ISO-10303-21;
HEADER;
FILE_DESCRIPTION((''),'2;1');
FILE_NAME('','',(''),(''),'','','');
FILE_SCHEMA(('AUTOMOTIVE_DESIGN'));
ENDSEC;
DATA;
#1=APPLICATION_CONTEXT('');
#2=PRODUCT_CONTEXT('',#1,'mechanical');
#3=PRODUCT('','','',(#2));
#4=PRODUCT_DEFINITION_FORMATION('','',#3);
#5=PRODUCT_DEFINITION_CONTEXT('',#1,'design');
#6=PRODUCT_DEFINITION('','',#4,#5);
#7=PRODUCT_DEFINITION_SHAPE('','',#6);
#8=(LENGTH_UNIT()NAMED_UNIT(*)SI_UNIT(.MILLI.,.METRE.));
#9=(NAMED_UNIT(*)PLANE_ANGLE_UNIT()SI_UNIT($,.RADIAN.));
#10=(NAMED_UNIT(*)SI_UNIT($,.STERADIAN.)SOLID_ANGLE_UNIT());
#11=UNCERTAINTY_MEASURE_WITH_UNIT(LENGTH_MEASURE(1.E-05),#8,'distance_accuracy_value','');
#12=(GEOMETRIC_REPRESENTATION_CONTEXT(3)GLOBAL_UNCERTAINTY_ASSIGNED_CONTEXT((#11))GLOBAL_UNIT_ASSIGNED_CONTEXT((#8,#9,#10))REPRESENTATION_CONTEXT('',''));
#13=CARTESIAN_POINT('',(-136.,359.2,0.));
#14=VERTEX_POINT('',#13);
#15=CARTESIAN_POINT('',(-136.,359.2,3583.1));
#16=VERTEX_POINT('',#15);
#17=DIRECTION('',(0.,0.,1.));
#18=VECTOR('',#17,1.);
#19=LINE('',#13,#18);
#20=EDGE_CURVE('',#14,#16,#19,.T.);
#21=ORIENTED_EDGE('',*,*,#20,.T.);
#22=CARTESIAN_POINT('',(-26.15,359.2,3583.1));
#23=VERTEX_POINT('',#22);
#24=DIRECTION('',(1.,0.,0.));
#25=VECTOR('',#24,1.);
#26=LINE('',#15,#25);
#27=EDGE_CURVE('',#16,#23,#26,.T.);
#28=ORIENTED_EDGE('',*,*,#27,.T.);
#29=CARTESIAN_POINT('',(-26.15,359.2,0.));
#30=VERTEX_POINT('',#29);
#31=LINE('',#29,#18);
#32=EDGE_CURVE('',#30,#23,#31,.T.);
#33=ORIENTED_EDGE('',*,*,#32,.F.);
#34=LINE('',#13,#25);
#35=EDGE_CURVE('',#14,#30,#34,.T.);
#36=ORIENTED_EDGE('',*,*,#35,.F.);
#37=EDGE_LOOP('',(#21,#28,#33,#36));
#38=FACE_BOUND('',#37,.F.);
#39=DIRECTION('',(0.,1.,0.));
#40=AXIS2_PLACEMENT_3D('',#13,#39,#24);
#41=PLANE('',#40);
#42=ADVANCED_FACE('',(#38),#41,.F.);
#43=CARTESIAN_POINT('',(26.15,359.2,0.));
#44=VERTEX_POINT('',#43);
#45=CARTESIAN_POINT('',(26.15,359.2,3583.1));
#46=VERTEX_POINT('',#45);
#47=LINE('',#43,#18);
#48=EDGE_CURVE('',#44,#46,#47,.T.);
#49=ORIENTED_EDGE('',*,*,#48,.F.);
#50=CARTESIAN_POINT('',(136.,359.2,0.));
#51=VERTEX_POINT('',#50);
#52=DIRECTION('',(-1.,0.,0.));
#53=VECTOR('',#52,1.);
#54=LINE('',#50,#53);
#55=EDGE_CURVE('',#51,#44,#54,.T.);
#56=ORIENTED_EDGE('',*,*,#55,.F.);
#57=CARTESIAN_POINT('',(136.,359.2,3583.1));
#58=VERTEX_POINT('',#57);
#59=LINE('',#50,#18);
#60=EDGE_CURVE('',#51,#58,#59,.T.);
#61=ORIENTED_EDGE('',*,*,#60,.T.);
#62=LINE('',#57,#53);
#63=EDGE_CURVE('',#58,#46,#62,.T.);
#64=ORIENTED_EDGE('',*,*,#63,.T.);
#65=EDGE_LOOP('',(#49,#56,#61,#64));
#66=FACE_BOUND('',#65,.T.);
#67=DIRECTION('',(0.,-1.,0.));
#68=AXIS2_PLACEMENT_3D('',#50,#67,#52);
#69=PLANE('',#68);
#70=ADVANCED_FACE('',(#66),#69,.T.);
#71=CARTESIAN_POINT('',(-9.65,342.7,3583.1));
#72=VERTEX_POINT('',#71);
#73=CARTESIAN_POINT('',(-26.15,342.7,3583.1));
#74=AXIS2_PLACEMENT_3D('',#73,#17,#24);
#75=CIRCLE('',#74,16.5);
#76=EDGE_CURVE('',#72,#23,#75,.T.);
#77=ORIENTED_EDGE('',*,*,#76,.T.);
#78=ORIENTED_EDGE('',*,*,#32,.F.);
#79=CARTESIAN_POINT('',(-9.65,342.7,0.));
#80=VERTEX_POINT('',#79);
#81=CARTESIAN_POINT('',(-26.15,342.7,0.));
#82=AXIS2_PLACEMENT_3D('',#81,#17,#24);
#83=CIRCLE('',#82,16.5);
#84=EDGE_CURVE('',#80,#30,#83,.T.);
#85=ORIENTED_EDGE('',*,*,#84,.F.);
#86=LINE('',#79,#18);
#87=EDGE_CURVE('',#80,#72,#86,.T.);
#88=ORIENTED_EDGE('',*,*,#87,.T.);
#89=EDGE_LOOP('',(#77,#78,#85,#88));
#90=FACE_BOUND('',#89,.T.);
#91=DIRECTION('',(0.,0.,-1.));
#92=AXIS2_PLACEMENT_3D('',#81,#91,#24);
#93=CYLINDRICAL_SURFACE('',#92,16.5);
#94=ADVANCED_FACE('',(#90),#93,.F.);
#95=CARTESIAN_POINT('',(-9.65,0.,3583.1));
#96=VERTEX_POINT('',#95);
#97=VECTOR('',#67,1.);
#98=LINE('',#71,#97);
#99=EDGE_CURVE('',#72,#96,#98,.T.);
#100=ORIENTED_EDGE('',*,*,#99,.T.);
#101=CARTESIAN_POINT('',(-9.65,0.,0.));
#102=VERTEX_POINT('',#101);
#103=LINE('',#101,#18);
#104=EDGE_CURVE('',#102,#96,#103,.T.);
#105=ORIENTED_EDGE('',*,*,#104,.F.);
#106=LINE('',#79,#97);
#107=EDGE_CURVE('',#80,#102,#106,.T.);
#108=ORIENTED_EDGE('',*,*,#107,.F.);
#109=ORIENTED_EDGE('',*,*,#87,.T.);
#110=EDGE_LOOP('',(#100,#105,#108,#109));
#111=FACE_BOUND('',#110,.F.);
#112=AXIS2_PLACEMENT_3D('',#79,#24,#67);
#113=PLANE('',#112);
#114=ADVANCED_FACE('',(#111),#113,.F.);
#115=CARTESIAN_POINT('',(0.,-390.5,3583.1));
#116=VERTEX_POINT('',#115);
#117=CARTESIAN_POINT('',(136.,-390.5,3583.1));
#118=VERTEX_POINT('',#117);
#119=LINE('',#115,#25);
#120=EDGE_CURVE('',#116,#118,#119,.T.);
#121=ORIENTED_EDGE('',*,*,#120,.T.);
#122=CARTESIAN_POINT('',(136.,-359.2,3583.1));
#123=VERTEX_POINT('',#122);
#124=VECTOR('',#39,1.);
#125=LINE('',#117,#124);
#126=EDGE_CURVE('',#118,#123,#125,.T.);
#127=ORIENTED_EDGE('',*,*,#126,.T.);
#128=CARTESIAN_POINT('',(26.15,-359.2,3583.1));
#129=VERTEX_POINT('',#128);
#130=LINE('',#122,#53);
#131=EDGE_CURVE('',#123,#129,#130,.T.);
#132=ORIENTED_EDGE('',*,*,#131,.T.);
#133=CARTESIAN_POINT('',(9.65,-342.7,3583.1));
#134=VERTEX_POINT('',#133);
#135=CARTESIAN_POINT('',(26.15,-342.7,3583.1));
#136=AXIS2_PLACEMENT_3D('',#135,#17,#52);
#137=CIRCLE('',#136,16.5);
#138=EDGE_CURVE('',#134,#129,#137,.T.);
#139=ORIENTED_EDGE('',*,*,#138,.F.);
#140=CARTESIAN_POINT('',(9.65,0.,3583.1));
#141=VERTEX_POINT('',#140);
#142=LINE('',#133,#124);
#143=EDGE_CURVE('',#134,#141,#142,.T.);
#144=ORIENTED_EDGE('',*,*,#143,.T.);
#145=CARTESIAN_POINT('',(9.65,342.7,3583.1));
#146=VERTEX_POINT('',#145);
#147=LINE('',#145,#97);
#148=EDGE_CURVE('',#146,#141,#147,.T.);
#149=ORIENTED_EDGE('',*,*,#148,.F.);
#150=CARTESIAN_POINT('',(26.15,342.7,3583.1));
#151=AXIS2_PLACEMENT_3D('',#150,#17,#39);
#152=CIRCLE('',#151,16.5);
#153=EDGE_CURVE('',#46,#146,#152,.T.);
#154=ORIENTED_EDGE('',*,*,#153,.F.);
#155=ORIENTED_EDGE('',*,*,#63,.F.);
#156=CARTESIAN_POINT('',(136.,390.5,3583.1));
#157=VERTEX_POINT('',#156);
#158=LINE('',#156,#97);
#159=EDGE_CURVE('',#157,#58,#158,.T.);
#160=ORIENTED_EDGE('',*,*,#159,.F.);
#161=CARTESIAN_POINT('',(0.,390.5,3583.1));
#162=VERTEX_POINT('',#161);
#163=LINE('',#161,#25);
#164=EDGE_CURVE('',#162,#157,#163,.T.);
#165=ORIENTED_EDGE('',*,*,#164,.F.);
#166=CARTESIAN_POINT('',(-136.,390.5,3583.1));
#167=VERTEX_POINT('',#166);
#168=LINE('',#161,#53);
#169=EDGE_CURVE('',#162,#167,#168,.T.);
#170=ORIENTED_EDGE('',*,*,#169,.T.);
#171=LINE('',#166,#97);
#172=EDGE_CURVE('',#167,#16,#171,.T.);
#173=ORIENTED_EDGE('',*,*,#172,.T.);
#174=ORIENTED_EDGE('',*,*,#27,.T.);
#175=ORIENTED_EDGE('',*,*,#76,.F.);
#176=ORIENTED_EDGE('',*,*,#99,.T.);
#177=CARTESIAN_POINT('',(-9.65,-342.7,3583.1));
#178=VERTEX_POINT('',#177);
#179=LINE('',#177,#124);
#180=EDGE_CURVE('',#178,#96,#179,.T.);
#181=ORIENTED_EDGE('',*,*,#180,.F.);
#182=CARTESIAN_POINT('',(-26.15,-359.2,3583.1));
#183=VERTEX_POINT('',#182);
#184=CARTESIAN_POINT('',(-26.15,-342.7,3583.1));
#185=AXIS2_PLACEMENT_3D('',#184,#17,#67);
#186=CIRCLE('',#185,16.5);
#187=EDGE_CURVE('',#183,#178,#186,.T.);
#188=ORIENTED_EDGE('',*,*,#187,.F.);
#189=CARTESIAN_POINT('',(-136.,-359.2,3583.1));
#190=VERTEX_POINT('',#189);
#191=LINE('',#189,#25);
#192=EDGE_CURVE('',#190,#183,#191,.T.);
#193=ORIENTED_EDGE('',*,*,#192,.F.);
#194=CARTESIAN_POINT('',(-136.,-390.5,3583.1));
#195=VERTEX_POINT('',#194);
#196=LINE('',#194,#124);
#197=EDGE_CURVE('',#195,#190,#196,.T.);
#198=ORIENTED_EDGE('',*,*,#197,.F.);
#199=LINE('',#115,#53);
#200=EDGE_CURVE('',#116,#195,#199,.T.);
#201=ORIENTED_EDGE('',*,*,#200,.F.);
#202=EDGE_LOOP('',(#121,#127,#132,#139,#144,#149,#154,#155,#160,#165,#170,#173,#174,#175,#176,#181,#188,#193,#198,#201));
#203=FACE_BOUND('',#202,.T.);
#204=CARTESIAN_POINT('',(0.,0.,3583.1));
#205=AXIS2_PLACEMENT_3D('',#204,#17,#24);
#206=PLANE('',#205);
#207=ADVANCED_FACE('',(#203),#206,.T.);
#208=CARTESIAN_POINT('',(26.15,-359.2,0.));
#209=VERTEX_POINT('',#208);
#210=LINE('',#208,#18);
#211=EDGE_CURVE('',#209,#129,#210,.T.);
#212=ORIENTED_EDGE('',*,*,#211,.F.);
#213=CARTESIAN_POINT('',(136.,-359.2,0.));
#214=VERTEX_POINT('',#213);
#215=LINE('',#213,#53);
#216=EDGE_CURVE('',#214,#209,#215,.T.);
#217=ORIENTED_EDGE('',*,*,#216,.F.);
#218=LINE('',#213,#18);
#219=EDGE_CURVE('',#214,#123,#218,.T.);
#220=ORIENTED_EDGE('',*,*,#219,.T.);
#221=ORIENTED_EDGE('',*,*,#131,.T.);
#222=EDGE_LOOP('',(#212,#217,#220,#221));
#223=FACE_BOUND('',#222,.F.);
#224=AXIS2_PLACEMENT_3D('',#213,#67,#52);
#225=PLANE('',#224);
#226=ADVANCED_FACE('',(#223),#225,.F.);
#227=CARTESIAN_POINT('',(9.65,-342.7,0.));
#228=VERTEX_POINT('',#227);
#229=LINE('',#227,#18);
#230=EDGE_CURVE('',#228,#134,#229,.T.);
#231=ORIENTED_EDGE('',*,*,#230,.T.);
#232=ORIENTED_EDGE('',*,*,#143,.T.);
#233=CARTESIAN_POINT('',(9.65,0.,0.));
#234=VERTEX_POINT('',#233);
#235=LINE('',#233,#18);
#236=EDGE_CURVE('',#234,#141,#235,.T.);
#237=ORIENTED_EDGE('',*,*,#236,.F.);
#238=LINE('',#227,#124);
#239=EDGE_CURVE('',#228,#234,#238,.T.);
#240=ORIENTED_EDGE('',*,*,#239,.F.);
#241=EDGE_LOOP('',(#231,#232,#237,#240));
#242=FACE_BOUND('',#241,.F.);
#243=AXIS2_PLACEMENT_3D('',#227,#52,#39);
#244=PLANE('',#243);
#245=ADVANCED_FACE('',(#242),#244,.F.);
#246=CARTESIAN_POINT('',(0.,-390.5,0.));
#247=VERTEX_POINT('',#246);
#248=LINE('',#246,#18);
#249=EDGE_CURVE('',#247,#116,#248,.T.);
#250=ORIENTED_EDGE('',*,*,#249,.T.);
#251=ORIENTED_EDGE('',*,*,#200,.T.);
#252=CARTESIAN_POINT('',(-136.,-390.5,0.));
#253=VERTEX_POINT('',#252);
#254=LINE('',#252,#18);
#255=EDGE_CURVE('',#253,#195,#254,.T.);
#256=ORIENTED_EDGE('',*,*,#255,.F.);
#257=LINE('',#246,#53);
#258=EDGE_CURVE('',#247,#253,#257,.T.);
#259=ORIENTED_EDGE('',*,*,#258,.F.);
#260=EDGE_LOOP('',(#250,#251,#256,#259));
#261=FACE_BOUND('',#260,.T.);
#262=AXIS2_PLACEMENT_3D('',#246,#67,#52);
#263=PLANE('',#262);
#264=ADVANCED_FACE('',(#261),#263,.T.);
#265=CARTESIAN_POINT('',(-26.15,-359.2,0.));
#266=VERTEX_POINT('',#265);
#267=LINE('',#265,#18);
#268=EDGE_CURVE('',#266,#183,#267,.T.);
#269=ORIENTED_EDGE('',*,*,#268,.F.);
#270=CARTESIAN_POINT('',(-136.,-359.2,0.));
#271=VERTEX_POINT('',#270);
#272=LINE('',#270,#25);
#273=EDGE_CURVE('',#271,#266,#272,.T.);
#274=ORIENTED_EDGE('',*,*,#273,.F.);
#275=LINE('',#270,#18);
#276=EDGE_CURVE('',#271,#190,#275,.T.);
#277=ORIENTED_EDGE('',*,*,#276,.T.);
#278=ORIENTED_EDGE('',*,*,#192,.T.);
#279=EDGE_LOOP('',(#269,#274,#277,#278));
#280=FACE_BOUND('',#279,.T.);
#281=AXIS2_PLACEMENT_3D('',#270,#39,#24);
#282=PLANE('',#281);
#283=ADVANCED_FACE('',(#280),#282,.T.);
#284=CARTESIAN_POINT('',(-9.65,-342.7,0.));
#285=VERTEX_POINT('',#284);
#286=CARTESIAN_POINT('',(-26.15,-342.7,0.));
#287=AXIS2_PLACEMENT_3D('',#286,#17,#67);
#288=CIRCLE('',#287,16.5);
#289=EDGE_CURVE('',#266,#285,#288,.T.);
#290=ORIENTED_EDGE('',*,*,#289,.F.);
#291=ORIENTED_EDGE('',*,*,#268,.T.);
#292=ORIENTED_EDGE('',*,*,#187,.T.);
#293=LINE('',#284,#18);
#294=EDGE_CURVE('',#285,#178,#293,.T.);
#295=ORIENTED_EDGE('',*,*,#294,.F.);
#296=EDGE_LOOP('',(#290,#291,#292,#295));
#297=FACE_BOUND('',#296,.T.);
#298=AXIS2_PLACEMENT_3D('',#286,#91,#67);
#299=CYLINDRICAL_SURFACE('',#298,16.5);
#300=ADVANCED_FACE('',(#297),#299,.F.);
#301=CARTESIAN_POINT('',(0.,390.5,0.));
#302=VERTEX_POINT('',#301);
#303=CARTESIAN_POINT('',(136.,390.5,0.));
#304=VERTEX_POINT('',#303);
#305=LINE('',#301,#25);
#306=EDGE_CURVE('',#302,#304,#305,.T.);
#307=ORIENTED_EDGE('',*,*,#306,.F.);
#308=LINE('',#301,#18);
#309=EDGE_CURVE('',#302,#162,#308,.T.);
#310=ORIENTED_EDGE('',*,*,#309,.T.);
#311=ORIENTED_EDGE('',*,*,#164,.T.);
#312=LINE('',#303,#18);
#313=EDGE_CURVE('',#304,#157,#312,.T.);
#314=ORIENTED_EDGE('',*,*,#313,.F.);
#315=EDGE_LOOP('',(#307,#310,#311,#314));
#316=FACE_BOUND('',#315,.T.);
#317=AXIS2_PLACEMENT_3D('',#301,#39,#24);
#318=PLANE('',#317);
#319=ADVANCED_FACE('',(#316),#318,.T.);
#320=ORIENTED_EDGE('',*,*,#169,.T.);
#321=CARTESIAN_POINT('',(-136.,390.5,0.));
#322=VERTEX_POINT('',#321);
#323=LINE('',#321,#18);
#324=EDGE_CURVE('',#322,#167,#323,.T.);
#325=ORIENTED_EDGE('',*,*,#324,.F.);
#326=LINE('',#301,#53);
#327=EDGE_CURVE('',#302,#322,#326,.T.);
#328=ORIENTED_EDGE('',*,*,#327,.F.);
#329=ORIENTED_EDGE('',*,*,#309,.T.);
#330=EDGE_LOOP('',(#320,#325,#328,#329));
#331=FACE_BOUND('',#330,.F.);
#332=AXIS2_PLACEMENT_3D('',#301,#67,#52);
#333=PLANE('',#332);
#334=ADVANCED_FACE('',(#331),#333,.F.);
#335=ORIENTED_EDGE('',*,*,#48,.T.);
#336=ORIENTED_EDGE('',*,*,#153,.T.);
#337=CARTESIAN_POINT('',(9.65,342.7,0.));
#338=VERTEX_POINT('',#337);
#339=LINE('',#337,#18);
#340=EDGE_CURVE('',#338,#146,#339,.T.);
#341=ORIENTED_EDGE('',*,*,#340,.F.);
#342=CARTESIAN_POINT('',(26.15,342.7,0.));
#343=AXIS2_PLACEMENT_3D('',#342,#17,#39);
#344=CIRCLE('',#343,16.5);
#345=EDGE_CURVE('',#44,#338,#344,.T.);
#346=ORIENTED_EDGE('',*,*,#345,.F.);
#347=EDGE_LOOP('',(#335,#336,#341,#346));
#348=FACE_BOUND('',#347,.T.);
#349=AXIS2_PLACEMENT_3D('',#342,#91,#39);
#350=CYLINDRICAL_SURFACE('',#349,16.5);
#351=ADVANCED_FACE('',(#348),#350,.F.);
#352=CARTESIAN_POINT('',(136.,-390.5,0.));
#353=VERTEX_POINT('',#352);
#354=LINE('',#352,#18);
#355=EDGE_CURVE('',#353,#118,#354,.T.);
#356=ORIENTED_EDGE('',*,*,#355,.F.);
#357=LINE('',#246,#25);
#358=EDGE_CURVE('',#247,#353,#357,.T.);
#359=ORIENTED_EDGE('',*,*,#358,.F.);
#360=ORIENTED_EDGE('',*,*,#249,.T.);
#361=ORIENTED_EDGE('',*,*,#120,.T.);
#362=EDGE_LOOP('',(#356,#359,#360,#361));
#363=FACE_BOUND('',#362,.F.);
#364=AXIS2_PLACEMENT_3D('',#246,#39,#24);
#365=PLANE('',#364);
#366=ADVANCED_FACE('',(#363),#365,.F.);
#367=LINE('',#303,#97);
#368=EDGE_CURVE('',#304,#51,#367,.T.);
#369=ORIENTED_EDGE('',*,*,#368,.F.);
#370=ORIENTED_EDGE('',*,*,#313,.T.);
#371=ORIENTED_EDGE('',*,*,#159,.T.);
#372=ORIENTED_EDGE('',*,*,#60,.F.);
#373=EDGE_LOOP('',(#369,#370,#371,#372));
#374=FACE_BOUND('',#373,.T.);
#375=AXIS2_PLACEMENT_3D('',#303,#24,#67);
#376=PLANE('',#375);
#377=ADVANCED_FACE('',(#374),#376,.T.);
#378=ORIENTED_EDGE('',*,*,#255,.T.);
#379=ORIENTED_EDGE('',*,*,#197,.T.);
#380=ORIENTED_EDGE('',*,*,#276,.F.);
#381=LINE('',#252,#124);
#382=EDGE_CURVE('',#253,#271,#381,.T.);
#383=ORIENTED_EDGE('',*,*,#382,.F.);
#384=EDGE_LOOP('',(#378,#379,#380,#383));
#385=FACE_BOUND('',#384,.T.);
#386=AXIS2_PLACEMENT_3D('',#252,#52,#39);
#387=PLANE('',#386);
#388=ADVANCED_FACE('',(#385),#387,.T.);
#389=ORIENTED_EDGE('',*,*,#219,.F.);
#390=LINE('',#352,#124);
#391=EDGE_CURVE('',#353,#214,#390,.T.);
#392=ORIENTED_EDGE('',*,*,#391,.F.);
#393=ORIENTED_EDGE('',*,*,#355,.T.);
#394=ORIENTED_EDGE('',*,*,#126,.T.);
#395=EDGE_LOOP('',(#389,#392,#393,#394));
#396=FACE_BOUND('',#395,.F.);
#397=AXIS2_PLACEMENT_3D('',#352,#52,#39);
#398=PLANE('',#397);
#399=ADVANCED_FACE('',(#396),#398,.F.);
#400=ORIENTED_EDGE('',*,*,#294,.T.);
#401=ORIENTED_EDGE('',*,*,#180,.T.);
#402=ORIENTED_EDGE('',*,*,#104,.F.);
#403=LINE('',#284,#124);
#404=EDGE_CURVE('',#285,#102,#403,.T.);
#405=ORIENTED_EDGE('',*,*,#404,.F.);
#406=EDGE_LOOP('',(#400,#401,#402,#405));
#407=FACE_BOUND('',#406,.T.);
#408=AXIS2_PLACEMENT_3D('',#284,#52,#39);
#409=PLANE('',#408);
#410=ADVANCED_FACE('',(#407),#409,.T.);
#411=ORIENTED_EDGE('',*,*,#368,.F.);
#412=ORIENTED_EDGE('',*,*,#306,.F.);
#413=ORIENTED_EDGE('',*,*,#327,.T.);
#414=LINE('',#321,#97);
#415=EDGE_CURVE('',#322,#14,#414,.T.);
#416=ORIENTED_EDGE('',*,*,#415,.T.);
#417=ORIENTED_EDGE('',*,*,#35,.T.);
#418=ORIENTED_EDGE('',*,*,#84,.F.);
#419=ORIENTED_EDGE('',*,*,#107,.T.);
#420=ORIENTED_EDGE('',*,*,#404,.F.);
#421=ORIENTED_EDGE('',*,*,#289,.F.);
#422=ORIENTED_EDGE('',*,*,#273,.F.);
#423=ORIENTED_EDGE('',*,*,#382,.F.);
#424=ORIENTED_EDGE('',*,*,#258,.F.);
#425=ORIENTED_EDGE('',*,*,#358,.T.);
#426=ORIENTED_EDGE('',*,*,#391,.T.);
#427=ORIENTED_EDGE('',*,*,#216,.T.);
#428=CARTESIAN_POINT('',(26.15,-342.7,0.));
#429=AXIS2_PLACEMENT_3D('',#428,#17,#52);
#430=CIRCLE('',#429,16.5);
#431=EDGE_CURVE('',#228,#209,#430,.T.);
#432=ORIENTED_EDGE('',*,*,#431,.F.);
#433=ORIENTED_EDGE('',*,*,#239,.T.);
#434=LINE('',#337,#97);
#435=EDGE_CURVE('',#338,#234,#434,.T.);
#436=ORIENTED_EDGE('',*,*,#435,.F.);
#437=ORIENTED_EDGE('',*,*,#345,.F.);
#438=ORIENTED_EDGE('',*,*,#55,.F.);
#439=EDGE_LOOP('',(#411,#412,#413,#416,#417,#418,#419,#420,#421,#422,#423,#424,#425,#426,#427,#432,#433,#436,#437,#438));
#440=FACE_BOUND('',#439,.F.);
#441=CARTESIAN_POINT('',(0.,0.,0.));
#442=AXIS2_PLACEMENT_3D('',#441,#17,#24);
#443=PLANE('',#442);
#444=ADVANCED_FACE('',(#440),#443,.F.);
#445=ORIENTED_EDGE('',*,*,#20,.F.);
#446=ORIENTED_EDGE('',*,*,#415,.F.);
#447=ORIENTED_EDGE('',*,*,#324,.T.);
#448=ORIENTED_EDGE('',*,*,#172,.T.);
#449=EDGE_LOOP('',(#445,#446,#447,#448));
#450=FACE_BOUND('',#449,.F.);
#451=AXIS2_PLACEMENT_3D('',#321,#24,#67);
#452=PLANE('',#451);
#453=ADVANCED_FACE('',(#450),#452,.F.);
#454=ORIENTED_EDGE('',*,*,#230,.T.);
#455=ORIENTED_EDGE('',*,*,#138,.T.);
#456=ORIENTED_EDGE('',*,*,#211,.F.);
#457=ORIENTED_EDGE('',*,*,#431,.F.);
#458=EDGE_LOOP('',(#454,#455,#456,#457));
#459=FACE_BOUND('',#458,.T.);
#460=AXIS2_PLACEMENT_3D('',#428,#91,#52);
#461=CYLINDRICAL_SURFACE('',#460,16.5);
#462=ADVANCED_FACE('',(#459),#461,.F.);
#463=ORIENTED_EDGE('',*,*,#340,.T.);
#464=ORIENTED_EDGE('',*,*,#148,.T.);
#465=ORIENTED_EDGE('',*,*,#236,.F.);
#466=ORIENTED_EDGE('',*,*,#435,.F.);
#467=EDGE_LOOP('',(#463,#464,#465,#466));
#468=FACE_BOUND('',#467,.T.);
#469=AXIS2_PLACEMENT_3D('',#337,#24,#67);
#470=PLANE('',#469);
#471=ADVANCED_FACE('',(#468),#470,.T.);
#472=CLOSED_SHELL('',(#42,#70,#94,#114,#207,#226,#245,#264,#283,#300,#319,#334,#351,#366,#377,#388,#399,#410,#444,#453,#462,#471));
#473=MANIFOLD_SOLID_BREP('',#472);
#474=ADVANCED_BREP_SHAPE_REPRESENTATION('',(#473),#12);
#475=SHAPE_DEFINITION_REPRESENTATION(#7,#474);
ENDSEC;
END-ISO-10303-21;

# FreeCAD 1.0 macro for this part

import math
import FreeCAD as App
import Part
import Sketcher
from FreeCAD import Vector
Q = App.Units.Quantity

doc = App.newDocument("Part")
body = doc.addObject("PartDesign::Body", "Body")

# Sketch on XY plane
sketch1 = body.newObject("Sketcher::SketchObject", "Sketch")
sketch1.AttachmentSupport = (doc.getObject("XY_Plane"), [""])
sketch1.MapMode = "FlatFace"
sketch1.addGeometry([
    Part.LineSegment(Vector(-136, -359, 0), Vector(-136, -390, 0)),  # 0
    Part.LineSegment(Vector(-136, -390, 0), Vector(136, -390, 0)),  # 1
    Part.LineSegment(Vector(136, -390, 0), Vector(136, -359, 0)),  # 2
    Part.LineSegment(Vector(136, -359, 0), Vector(26, -359, 0)),  # 3
    Part.ArcOfCircle(Part.Circle(Vector(26, -343, 0), Vector(0, 0, 1), 16), math.radians(180), math.radians(270)),  # 4
    Part.LineSegment(Vector(10, -343, 0), Vector(10, 343, 0)),  # 5
    Part.ArcOfCircle(Part.Circle(Vector(26, 343, 0), Vector(0, 0, 1), 16), math.radians(90), math.radians(180)),  # 6
    Part.LineSegment(Vector(26, 359, 0), Vector(136, 359, 0)),  # 7
    Part.LineSegment(Vector(136, 359, 0), Vector(136, 390, 0)),  # 8
    Part.LineSegment(Vector(136, 390, 0), Vector(-136, 390, 0)),  # 9
    Part.LineSegment(Vector(-136, 390, 0), Vector(-136, 359, 0)),  # 10
    Part.LineSegment(Vector(-136, 359, 0), Vector(-26, 359, 0)),  # 11
    Part.ArcOfCircle(Part.Circle(Vector(-26, 343, 0), Vector(0, 0, 1), 16), math.radians(0), math.radians(90)),  # 12
    Part.LineSegment(Vector(-10, 343, 0), Vector(-10, -343, 0)),  # 13
    Part.ArcOfCircle(Part.Circle(Vector(-26, -343, 0), Vector(0, 0, 1), 16), math.radians(-90), math.radians(0)),  # 14
    Part.LineSegment(Vector(-26, -359, 0), Vector(-136, -359, 0)),  # 15
], False)
sketch1.addConstraint([
    Sketcher.Constraint("Coincident", 0, 2, 1, 1),
    Sketcher.Constraint("Coincident", 1, 2, 2, 1),
    Sketcher.Constraint("Coincident", 2, 2, 3, 1),
    Sketcher.Constraint("Tangent", 3, 2, 4, 2),
    Sketcher.Constraint("Tangent", 4, 1, 5, 1),
    Sketcher.Constraint("Tangent", 5, 2, 6, 2),
    Sketcher.Constraint("Tangent", 6, 1, 7, 1),
    Sketcher.Constraint("Coincident", 7, 2, 8, 1),
    Sketcher.Constraint("Coincident", 8, 2, 9, 1),
    Sketcher.Constraint("Coincident", 9, 2, 10, 1),
    Sketcher.Constraint("Coincident", 10, 2, 11, 1),
    Sketcher.Constraint("Tangent", 11, 2, 12, 2),
    Sketcher.Constraint("Tangent", 12, 1, 13, 1),
    Sketcher.Constraint("Tangent", 13, 2, 14, 2),
    Sketcher.Constraint("Tangent", 14, 1, 15, 1),
    Sketcher.Constraint("Coincident", 15, 2, 0, 1),
    Sketcher.Constraint("Vertical", 0),
    Sketcher.Constraint("Horizontal", 1),
    Sketcher.Constraint("Vertical", 2),
    Sketcher.Constraint("Horizontal", 3),
    Sketcher.Constraint("Vertical", 5),
    Sketcher.Constraint("Horizontal", 7),
    Sketcher.Constraint("Vertical", 8),
    Sketcher.Constraint("Horizontal", 9),
    Sketcher.Constraint("Vertical", 10),
    Sketcher.Constraint("Horizontal", 11),
    Sketcher.Constraint("Vertical", 13),
    Sketcher.Constraint("Horizontal", 15),
    Sketcher.Constraint("Equal", 4, 6),
    Sketcher.Constraint("Equal", 6, 12),
    Sketcher.Constraint("Equal", 12, 14),
    Sketcher.Constraint("Symmetric", 4, 3, 12, 3, -1, 1),
    Sketcher.Constraint("Symmetric", 0, 2, 8, 2, -1, 1),
    Sketcher.Constraint("Symmetric", 7, 2, 10, 2, -2),
    Sketcher.Constraint("Symmetric", 2, 2, 15, 2, -2),
    Sketcher.Constraint("Radius", 4, Q("16.5 mm")),
    Sketcher.Constraint("DistanceY", 0, 2, 0, 1, Q("31.3 mm")),
    Sketcher.Constraint("DistanceX", 0, 2, -1, 1, Q("136 mm")),
    Sketcher.Constraint("DistanceY", 0, 2, -1, 1, Q("390.5 mm")),
    Sketcher.Constraint("DistanceX", -1, 1, 4, 1, Q("9.65 mm")),
])
pad1 = body.newObject("PartDesign::Pad", "Pad")
pad1.Profile = sketch1
pad1.Length = 3583.1

doc.recompute()
